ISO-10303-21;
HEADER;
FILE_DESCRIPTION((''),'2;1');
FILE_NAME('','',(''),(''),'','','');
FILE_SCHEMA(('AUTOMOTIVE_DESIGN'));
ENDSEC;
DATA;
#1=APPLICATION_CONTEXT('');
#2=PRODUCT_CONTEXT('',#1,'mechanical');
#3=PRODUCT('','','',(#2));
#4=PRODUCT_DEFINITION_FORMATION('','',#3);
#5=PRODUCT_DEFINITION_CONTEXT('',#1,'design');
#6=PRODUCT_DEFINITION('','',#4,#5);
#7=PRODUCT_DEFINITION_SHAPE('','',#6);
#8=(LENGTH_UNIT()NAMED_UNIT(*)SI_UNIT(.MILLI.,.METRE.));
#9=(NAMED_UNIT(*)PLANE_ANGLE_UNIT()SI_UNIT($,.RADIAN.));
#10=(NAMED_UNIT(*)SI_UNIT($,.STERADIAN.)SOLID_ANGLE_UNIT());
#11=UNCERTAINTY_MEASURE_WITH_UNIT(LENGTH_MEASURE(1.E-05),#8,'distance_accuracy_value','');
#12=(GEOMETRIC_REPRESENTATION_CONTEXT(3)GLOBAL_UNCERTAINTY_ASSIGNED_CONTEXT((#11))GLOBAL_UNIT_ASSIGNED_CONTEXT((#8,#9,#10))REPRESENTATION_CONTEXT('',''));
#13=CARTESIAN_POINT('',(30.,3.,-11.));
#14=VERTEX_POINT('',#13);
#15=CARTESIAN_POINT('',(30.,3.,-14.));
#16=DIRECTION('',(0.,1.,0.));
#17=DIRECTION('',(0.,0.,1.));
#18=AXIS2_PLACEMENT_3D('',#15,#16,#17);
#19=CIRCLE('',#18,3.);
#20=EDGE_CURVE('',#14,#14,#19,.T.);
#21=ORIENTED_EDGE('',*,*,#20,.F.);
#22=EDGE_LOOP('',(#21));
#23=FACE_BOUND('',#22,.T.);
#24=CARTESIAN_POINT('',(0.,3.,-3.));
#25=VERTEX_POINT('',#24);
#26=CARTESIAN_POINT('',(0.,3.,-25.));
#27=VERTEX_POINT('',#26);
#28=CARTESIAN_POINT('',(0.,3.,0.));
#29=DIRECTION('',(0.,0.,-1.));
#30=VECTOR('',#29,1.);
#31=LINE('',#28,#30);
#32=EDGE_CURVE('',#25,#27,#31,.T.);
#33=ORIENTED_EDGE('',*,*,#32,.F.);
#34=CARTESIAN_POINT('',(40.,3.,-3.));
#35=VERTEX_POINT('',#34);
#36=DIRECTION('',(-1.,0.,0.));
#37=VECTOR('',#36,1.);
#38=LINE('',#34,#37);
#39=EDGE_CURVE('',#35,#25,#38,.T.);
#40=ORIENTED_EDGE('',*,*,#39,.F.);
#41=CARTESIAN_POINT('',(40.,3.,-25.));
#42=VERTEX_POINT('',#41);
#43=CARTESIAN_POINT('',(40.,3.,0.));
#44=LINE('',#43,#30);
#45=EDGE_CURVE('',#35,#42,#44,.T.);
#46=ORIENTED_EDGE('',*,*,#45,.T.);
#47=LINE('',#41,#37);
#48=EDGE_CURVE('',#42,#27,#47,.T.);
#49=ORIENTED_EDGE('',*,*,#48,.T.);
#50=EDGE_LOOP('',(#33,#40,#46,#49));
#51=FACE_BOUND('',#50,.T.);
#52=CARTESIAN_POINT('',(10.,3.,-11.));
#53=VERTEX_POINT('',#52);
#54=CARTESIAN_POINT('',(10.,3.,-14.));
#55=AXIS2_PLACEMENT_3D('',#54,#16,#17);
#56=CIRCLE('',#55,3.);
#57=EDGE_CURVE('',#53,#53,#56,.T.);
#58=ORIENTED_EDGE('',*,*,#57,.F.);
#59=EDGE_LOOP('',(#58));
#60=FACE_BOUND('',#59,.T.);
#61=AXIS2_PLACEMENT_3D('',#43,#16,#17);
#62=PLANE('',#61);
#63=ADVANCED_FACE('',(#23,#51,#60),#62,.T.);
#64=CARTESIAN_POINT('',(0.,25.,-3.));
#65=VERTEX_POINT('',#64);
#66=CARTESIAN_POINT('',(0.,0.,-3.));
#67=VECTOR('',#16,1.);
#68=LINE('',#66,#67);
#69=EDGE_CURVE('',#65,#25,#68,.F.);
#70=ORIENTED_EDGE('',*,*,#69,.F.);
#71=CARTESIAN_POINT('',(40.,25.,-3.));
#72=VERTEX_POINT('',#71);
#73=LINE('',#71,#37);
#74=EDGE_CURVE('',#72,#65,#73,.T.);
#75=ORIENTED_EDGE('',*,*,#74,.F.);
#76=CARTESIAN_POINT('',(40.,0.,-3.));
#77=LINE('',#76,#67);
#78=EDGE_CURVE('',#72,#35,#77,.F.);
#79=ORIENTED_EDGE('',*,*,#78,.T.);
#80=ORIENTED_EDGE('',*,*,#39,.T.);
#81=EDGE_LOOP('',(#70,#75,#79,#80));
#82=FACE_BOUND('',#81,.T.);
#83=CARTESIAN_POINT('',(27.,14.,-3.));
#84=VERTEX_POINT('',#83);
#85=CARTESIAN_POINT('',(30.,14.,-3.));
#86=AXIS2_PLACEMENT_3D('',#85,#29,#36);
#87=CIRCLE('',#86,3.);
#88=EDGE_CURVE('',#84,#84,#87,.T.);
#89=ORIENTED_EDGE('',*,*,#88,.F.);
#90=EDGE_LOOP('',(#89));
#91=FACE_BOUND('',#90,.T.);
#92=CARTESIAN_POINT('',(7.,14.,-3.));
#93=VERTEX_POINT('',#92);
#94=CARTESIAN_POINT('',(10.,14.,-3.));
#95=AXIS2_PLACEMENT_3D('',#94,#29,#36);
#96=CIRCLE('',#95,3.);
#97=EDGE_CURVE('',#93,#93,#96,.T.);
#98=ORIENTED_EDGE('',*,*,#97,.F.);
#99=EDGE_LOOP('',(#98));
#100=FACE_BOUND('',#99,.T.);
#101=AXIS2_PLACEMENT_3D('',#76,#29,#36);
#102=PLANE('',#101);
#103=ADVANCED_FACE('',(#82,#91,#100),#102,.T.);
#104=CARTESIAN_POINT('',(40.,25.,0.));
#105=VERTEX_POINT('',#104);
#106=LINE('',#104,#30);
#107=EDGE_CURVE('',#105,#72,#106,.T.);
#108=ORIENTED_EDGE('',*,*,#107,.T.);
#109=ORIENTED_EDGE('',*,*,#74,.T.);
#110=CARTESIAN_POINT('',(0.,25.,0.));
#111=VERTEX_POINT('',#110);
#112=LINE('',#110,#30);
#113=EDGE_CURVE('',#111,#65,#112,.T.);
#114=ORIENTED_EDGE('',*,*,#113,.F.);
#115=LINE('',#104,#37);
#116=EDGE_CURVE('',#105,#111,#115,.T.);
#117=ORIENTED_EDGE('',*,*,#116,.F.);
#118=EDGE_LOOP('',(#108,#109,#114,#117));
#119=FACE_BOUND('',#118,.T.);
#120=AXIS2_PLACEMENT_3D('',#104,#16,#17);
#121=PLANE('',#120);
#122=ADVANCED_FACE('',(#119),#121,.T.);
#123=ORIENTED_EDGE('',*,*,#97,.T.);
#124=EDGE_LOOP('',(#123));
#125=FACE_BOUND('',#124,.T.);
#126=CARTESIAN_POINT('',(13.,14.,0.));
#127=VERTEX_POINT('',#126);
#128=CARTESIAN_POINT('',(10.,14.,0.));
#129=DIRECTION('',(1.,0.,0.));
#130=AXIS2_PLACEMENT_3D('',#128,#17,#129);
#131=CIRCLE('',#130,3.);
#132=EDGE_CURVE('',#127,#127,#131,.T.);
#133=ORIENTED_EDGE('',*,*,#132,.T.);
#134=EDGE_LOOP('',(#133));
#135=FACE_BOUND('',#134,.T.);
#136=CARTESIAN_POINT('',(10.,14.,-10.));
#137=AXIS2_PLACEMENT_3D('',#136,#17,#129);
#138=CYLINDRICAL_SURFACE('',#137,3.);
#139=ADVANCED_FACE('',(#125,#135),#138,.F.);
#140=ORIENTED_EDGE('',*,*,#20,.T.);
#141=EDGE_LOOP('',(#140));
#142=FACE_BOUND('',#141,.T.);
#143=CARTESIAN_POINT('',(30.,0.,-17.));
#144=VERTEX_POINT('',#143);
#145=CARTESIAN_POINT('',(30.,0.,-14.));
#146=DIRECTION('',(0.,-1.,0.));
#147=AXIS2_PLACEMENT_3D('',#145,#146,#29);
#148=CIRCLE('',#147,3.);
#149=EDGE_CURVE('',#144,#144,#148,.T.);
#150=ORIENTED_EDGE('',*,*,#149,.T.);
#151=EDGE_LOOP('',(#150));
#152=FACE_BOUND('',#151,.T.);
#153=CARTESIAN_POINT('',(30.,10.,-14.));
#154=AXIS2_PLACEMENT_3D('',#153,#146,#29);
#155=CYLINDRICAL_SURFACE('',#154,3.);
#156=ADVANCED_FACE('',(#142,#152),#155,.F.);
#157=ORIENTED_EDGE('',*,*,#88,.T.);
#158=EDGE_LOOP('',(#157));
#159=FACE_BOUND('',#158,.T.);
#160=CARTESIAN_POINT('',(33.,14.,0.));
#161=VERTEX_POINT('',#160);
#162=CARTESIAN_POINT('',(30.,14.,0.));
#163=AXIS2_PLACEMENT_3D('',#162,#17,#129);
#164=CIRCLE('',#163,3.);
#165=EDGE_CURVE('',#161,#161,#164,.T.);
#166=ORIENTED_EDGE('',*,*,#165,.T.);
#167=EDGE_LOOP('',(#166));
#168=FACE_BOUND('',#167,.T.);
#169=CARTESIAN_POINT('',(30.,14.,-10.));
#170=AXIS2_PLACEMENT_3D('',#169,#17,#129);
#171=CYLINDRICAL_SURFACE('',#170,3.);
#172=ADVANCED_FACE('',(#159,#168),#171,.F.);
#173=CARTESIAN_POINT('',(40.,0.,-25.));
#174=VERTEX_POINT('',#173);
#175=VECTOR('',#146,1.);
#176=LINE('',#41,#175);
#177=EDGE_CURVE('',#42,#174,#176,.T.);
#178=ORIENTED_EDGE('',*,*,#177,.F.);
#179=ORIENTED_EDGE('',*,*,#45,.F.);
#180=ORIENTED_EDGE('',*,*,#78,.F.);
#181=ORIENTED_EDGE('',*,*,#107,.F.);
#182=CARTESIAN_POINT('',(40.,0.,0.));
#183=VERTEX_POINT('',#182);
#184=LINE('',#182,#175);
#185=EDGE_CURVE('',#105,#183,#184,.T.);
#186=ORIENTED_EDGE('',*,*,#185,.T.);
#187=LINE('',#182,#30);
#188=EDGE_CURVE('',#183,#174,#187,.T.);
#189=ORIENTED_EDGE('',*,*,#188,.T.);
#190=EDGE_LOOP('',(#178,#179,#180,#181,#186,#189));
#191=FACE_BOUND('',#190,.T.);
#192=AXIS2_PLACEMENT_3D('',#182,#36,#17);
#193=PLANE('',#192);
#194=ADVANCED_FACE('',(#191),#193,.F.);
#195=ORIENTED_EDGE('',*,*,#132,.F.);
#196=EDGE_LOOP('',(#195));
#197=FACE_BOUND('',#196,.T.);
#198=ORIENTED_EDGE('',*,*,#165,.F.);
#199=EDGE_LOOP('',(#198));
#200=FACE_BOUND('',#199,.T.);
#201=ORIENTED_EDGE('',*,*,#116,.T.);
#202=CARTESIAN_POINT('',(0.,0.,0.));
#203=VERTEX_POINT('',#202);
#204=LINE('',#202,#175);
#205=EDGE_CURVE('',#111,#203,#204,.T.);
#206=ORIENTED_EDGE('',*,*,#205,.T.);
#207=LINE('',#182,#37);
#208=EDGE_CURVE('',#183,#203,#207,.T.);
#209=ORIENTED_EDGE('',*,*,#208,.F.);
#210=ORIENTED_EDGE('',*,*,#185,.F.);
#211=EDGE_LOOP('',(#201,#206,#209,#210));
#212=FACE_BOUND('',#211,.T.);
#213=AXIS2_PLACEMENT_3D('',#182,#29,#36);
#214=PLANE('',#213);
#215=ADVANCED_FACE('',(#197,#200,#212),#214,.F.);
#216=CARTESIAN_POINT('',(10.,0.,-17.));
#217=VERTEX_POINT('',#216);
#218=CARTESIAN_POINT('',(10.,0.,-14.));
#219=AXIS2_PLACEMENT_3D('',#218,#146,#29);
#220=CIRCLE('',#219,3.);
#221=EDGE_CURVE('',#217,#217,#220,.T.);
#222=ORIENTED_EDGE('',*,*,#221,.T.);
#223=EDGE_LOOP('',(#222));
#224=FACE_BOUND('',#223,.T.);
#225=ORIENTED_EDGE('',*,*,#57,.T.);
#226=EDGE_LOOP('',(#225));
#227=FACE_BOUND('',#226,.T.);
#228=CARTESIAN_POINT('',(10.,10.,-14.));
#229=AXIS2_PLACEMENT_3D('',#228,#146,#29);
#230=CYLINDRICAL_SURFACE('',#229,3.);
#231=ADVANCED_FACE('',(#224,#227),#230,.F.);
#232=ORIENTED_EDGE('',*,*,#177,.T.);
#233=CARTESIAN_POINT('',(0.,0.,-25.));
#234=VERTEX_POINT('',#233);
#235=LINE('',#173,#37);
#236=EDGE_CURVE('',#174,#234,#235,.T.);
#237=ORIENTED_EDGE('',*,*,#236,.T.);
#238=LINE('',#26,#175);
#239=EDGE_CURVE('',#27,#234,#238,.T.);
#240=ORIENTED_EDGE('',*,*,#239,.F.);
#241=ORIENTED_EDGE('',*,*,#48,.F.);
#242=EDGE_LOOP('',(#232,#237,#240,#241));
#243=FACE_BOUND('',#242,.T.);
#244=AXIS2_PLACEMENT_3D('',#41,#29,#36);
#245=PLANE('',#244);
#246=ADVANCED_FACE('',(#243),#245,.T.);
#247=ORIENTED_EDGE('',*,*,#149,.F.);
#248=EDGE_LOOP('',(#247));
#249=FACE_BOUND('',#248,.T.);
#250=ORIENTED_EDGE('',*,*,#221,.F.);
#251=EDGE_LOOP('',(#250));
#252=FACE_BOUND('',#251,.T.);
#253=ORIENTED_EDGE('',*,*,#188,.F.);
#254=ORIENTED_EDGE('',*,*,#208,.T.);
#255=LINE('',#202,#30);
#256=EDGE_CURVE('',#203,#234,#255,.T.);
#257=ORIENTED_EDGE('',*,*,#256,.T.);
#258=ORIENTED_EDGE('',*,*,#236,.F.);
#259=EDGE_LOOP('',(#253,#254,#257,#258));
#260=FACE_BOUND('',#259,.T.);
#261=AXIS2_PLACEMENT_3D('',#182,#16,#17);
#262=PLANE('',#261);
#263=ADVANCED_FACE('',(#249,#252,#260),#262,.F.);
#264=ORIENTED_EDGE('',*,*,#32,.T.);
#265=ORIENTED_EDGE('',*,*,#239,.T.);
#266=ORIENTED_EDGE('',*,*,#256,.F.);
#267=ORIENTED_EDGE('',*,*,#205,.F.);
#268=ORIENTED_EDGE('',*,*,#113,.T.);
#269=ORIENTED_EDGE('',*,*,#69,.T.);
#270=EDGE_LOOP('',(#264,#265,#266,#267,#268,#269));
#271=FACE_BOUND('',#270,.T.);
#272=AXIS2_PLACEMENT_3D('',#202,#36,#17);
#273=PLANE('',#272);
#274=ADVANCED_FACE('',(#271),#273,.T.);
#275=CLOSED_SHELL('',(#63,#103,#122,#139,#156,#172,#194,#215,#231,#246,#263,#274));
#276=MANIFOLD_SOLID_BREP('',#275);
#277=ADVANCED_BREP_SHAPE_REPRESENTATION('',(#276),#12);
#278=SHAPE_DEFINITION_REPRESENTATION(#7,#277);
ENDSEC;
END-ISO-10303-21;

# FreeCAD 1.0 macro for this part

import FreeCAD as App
import Part
import Sketcher
from FreeCAD import Vector
Q = App.Units.Quantity


def add_polygon(sketch, points):
    """Adds a closed chain of lines whose ends are joined by coincident constraints."""
    first, n = sketch.GeometryCount, len(points)
    for a, b in zip(points, points[1:] + points[:1]):
        sketch.addGeometry(Part.LineSegment(App.Vector(*a, 0), App.Vector(*b, 0)), False)
    for i in range(n):
        sketch.addConstraint(Sketcher.Constraint("Coincident", first + i, 2, first + (i + 1) % n, 1))

doc = App.newDocument("Part")
body = doc.addObject("PartDesign::Body", "Body")

sketch1 = doc.addObject("Sketcher::SketchObject", "Sketch")
body.addObject(sketch1)
sketch1.AttachmentSupport = (doc.YZ_Plane, [""])
sketch1.MapMode = "FlatFace"
add_polygon(sketch1, [(0, 0), (0, -25), (3, -25), (3, -3), (25, -3), (25, 0)])
sketch1.addConstraint([
    Sketcher.Constraint("Vertical", 0),
    Sketcher.Constraint("Horizontal", 1),
    Sketcher.Constraint("Vertical", 2),
    Sketcher.Constraint("Horizontal", 3),
    Sketcher.Constraint("Vertical", 4),
    Sketcher.Constraint("Horizontal", 5),
    Sketcher.Constraint("Coincident", 5, 2, -1, 1),
    Sketcher.Constraint("Equal", 5, 0),
    Sketcher.Constraint("Equal", 3, 2),
    Sketcher.Constraint("DistanceX", 1, 1, 1, 2, Q("3 mm")),
    Sketcher.Constraint("DistanceX", 3, 1, 3, 2, Q("22 mm")),
])
pad1 = doc.addObject("PartDesign::Pad", "Pad")
body.addObject(pad1)
pad1.Profile = sketch1
pad1.Length = 40

sketch2 = doc.addObject("Sketcher::SketchObject", "Sketch001")
body.addObject(sketch2)
sketch2.AttachmentSupport = (doc.XZ_Plane, [""])
sketch2.MapMode = "FlatFace"
sketch2.addGeometry([
    Part.Circle(Vector(10, -14, 0), Vector(0, 0, 1), 3),
    Part.Circle(Vector(30, -14, 0), Vector(0, 0, 1), 3),
], False)
sketch2.addConstraint([
    Sketcher.Constraint("Equal", 0, 1),
    Sketcher.Constraint("Horizontal", 0, 3, 1, 3),
    Sketcher.Constraint("Diameter", 0, Q("6 mm")),
    Sketcher.Constraint("DistanceX", -1, 1, 0, 3, Q("10 mm")),
    Sketcher.Constraint("DistanceY", 0, 3, -1, 1, Q("14 mm")),
    Sketcher.Constraint("DistanceX", -1, 1, 1, 3, Q("30 mm")),
])
pocket1 = doc.addObject("PartDesign::Pocket", "Pocket")
body.addObject(pocket1)
pocket1.Profile = sketch2
pocket1.Length = 10

sketch3 = doc.addObject("Sketcher::SketchObject", "Sketch002")
body.addObject(sketch3)
sketch3.AttachmentSupport = (doc.XY_Plane, [""])
sketch3.MapMode = "FlatFace"
sketch3.addGeometry([
    Part.Circle(Vector(10, 14, 0), Vector(0, 0, 1), 3),
    Part.Circle(Vector(30, 14, 0), Vector(0, 0, 1), 3),
], False)
sketch3.addConstraint([
    Sketcher.Constraint("Equal", 0, 1),
    Sketcher.Constraint("Horizontal", 0, 3, 1, 3),
    Sketcher.Constraint("Diameter", 0, Q("6 mm")),
    Sketcher.Constraint("DistanceX", -1, 1, 0, 3, Q("10 mm")),
    Sketcher.Constraint("DistanceY", -1, 1, 0, 3, Q("14 mm")),
    Sketcher.Constraint("DistanceX", -1, 1, 1, 3, Q("30 mm")),
])
pocket2 = doc.addObject("PartDesign::Pocket", "Pocket001")
body.addObject(pocket2)
pocket2.Profile = sketch3
pocket2.Length = 10

doc.recompute()
